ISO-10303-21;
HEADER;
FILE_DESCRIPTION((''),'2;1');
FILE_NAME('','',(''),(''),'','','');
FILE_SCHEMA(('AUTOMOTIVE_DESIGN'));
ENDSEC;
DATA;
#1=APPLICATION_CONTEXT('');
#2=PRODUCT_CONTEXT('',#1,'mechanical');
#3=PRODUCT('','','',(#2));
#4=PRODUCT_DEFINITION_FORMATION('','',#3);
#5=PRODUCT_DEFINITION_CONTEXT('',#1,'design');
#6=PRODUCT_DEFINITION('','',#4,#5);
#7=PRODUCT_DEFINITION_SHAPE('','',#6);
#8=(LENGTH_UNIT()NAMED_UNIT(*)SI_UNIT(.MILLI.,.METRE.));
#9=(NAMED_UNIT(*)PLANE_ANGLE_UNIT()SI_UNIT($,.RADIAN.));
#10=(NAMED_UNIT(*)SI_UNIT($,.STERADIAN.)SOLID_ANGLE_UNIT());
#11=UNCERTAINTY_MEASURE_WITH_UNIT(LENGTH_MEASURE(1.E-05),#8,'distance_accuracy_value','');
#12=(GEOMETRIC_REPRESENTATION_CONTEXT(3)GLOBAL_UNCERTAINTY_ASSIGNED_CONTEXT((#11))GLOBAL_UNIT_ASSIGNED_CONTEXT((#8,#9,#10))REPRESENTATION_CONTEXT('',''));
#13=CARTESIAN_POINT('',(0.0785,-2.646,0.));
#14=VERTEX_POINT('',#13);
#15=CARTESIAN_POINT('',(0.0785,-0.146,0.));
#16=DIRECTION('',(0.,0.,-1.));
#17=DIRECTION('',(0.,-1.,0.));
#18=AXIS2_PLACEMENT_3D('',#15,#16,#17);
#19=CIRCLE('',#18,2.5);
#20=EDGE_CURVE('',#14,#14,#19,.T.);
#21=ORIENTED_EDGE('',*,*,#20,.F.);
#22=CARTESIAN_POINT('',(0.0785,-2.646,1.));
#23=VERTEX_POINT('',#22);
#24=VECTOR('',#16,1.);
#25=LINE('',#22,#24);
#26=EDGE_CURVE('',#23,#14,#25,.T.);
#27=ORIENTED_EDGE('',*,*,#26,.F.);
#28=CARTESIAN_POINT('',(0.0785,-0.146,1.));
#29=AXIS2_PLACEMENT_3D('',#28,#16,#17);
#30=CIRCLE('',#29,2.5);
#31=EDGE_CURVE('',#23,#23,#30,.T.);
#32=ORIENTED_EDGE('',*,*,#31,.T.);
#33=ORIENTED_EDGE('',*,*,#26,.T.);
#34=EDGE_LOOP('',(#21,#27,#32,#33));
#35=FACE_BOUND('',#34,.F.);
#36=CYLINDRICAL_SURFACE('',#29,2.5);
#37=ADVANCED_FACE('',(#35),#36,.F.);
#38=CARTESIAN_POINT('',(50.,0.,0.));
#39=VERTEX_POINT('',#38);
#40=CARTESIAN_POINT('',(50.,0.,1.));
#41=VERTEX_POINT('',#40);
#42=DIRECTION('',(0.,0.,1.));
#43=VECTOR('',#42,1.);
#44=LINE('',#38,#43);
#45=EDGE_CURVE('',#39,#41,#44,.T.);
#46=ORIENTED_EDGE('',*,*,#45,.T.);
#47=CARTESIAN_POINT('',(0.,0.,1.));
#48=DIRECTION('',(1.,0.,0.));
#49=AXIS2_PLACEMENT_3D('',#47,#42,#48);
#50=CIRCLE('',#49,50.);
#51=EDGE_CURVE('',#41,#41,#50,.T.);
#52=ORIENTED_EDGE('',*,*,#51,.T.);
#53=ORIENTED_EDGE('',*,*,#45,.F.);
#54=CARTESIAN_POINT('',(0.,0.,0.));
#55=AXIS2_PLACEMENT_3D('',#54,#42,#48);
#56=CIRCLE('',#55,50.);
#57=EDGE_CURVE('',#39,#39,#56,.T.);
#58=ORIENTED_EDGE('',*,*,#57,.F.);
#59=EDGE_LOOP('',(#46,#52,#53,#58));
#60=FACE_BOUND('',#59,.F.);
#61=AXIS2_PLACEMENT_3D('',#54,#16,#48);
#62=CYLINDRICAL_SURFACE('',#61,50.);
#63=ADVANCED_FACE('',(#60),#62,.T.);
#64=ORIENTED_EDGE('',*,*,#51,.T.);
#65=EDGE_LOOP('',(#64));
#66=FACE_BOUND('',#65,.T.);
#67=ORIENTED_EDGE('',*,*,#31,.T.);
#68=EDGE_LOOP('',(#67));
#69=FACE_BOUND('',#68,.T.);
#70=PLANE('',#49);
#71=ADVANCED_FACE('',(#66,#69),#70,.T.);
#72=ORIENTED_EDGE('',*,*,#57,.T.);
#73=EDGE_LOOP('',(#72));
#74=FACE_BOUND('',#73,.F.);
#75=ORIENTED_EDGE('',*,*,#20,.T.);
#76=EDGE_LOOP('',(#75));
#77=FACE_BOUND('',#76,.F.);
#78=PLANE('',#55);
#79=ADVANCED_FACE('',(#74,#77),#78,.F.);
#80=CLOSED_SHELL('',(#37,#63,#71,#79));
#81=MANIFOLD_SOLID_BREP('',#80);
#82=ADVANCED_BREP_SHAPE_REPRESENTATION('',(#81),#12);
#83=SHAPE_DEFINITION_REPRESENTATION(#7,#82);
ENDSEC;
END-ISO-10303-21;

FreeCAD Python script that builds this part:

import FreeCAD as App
import Part
import Sketcher
from FreeCAD import Vector
Q = App.Units.Quantity

doc = App.newDocument("Part")
body = doc.addObject("PartDesign::Body", "Body")

# Sketch on XY plane
sketch1 = doc.addObject("Sketcher::SketchObject", "Sketch")
body.addObject(sketch1)
sketch1.AttachmentSupport = (doc.XY_Plane, [""])
sketch1.MapMode = "FlatFace"
sketch1.addGeometry(Part.Circle(Vector(0, 0, 0), Vector(0, 0, 1), 50), False)
sketch1.addConstraint(Sketcher.Constraint("Coincident", 0, 3, -1, 1))
sketch1.addConstraint(Sketcher.Constraint("Diameter", 0, Q("100 mm")))
pad1 = doc.addObject("PartDesign::Pad", "Pad")
body.addObject(pad1)
pad1.Profile = sketch1
pad1.Length = 1

# Sketch on XY plane
sketch2 = doc.addObject("Sketcher::SketchObject", "Sketch001")
body.addObject(sketch2)
sketch2.AttachmentSupport = (doc.XY_Plane, [""])
sketch2.MapMode = "FlatFace"
sketch2.AttachmentOffset = App.Placement(Vector(0, 0, 1), App.Rotation())
sketch2.addGeometry(Part.Circle(Vector(0.1, -0.1, 0), Vector(0, 0, 1), 2.5), False)
sketch2.addConstraint(Sketcher.Constraint("Diameter", 0, Q("5 mm")))
sketch2.addConstraint(Sketcher.Constraint("DistanceY", 0, 3, -1, 1, Q("0.146 mm")))
sketch2.addConstraint(Sketcher.Constraint("DistanceX", -1, 1, 0, 3, Q("0.0785 mm")))
doc.recompute()
hole = doc.addObject("PartDesign::Hole", "Hole")
body.addObject(hole)
hole.Profile = sketch2
hole.ThreadType = "None"
hole.Diameter = 5
hole.DepthType = "Dimension"
hole.Depth = 1
hole.DrillPoint = "Flat"

doc.recompute()
